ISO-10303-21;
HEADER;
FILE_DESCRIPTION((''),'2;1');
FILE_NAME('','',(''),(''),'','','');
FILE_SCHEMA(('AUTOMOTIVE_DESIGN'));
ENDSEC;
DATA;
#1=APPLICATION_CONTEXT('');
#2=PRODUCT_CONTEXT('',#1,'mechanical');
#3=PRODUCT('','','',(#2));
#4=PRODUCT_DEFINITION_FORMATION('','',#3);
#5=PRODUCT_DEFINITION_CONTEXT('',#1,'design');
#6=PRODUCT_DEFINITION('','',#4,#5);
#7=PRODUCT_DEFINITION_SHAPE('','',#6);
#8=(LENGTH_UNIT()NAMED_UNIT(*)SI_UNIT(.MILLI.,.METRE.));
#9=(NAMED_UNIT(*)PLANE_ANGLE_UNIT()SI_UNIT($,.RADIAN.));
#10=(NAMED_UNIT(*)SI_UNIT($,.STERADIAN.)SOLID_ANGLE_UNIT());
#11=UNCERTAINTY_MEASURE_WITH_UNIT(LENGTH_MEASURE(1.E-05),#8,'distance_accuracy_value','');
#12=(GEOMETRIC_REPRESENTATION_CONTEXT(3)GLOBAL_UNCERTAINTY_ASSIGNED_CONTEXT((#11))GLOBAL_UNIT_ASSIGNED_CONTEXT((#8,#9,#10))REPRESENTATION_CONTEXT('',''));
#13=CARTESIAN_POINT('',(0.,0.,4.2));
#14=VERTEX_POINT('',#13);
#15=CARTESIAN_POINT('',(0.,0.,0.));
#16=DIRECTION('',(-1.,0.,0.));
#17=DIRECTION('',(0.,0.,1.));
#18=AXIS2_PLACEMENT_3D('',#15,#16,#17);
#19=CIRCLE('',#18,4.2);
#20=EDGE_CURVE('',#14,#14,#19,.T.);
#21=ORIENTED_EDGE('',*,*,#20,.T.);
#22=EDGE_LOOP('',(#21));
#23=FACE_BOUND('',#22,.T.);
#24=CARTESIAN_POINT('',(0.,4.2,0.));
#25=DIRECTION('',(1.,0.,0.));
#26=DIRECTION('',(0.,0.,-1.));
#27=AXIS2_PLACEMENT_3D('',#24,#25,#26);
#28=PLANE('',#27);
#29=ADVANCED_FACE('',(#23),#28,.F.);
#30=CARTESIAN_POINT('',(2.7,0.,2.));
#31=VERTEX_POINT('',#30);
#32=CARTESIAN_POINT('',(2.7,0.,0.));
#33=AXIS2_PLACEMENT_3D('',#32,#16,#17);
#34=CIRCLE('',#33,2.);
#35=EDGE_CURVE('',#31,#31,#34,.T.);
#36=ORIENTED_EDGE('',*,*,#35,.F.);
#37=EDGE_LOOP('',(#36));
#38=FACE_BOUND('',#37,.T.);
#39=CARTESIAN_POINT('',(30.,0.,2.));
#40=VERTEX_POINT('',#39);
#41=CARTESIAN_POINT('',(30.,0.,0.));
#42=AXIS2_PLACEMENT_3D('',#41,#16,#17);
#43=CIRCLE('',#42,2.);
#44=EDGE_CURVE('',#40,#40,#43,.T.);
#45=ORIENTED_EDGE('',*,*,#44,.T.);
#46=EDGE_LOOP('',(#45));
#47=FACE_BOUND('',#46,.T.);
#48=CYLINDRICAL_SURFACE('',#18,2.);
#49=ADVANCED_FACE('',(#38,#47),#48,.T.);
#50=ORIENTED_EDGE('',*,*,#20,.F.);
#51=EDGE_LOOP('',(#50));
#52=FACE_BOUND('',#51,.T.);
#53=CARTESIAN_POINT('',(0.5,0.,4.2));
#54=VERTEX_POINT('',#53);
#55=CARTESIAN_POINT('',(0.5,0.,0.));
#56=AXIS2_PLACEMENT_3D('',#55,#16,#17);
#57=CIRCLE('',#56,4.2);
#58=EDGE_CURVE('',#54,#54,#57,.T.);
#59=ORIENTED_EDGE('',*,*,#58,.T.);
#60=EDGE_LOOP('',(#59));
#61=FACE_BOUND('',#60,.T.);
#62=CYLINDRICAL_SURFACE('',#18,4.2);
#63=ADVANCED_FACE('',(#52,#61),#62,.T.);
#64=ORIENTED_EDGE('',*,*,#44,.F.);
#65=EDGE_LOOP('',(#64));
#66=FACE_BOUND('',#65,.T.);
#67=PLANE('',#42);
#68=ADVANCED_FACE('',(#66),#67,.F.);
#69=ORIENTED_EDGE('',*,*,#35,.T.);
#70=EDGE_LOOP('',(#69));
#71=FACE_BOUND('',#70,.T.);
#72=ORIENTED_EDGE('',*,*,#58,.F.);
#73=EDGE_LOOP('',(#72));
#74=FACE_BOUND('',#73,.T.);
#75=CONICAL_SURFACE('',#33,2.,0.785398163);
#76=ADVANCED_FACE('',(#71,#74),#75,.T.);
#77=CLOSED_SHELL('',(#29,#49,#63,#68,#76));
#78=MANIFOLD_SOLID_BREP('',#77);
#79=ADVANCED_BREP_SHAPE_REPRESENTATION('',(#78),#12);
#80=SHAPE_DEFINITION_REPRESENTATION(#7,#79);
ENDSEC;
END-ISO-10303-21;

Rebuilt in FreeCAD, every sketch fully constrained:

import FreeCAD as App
import Part
import Sketcher
Q = App.Units.Quantity

doc = App.newDocument("Part")
body = doc.addObject("PartDesign::Body", "Body")

# Sketch on XY plane
sketch1 = body.newObject("Sketcher::SketchObject", "Sketch")
sketch1.AttachmentSupport = (doc.getObject("XY_Plane"), [""])
sketch1.MapMode = "FlatFace"
sketch1.addGeometry(Part.LineSegment(App.Vector(0, 0, 0), App.Vector(30, 0, 0)), False)
sketch1.addGeometry(Part.LineSegment(App.Vector(30, 0, 0), App.Vector(30, 2, 0)), False)
sketch1.addGeometry(Part.LineSegment(App.Vector(30, 2, 0), App.Vector(2.7, 2, 0)), False)
sketch1.addGeometry(Part.LineSegment(App.Vector(2.7, 2, 0), App.Vector(0.5, 4.2, 0)), False)
sketch1.addGeometry(Part.LineSegment(App.Vector(0.5, 4.2, 0), App.Vector(0, 4.2, 0)), False)
sketch1.addGeometry(Part.LineSegment(App.Vector(0, 4.2, 0), App.Vector(0, 0, 0)), False)
sketch1.addConstraint(Sketcher.Constraint("Coincident", 0, 2, 1, 1))
sketch1.addConstraint(Sketcher.Constraint("Coincident", 1, 2, 2, 1))
sketch1.addConstraint(Sketcher.Constraint("Coincident", 2, 2, 3, 1))
sketch1.addConstraint(Sketcher.Constraint("Coincident", 3, 2, 4, 1))
sketch1.addConstraint(Sketcher.Constraint("Coincident", 4, 2, 5, 1))
sketch1.addConstraint(Sketcher.Constraint("Coincident", 5, 2, 0, 1))
sketch1.addConstraint(Sketcher.Constraint("Horizontal", 0))
sketch1.addConstraint(Sketcher.Constraint("Vertical", 1))
sketch1.addConstraint(Sketcher.Constraint("Horizontal", 2))
sketch1.addConstraint(Sketcher.Constraint("Horizontal", 4))
sketch1.addConstraint(Sketcher.Constraint("Vertical", 5))
sketch1.addConstraint(Sketcher.Constraint("Coincident", 5, 2, -1, 1))
sketch1.addConstraint(Sketcher.Constraint("DistanceX", 0, 1, 0, 2, Q("30 mm")))
sketch1.addConstraint(Sketcher.Constraint("DistanceY", 1, 1, 1, 2, Q("2 mm")))
sketch1.addConstraint(Sketcher.Constraint("Angle", 3, Q("135 deg")))
sketch1.addConstraint(Sketcher.Constraint("DistanceX", 2, 2, 2, 1, Q("27.3 mm")))
sketch1.addConstraint(Sketcher.Constraint("DistanceX", 4, 2, 4, 1, Q("0.5 mm")))
revolution = body.newObject("PartDesign::Revolution", "Revolution")
revolution.Profile = sketch1
revolution.ReferenceAxis = (sketch1, ["H_Axis"])
revolution.Angle = 360

doc.recompute()
